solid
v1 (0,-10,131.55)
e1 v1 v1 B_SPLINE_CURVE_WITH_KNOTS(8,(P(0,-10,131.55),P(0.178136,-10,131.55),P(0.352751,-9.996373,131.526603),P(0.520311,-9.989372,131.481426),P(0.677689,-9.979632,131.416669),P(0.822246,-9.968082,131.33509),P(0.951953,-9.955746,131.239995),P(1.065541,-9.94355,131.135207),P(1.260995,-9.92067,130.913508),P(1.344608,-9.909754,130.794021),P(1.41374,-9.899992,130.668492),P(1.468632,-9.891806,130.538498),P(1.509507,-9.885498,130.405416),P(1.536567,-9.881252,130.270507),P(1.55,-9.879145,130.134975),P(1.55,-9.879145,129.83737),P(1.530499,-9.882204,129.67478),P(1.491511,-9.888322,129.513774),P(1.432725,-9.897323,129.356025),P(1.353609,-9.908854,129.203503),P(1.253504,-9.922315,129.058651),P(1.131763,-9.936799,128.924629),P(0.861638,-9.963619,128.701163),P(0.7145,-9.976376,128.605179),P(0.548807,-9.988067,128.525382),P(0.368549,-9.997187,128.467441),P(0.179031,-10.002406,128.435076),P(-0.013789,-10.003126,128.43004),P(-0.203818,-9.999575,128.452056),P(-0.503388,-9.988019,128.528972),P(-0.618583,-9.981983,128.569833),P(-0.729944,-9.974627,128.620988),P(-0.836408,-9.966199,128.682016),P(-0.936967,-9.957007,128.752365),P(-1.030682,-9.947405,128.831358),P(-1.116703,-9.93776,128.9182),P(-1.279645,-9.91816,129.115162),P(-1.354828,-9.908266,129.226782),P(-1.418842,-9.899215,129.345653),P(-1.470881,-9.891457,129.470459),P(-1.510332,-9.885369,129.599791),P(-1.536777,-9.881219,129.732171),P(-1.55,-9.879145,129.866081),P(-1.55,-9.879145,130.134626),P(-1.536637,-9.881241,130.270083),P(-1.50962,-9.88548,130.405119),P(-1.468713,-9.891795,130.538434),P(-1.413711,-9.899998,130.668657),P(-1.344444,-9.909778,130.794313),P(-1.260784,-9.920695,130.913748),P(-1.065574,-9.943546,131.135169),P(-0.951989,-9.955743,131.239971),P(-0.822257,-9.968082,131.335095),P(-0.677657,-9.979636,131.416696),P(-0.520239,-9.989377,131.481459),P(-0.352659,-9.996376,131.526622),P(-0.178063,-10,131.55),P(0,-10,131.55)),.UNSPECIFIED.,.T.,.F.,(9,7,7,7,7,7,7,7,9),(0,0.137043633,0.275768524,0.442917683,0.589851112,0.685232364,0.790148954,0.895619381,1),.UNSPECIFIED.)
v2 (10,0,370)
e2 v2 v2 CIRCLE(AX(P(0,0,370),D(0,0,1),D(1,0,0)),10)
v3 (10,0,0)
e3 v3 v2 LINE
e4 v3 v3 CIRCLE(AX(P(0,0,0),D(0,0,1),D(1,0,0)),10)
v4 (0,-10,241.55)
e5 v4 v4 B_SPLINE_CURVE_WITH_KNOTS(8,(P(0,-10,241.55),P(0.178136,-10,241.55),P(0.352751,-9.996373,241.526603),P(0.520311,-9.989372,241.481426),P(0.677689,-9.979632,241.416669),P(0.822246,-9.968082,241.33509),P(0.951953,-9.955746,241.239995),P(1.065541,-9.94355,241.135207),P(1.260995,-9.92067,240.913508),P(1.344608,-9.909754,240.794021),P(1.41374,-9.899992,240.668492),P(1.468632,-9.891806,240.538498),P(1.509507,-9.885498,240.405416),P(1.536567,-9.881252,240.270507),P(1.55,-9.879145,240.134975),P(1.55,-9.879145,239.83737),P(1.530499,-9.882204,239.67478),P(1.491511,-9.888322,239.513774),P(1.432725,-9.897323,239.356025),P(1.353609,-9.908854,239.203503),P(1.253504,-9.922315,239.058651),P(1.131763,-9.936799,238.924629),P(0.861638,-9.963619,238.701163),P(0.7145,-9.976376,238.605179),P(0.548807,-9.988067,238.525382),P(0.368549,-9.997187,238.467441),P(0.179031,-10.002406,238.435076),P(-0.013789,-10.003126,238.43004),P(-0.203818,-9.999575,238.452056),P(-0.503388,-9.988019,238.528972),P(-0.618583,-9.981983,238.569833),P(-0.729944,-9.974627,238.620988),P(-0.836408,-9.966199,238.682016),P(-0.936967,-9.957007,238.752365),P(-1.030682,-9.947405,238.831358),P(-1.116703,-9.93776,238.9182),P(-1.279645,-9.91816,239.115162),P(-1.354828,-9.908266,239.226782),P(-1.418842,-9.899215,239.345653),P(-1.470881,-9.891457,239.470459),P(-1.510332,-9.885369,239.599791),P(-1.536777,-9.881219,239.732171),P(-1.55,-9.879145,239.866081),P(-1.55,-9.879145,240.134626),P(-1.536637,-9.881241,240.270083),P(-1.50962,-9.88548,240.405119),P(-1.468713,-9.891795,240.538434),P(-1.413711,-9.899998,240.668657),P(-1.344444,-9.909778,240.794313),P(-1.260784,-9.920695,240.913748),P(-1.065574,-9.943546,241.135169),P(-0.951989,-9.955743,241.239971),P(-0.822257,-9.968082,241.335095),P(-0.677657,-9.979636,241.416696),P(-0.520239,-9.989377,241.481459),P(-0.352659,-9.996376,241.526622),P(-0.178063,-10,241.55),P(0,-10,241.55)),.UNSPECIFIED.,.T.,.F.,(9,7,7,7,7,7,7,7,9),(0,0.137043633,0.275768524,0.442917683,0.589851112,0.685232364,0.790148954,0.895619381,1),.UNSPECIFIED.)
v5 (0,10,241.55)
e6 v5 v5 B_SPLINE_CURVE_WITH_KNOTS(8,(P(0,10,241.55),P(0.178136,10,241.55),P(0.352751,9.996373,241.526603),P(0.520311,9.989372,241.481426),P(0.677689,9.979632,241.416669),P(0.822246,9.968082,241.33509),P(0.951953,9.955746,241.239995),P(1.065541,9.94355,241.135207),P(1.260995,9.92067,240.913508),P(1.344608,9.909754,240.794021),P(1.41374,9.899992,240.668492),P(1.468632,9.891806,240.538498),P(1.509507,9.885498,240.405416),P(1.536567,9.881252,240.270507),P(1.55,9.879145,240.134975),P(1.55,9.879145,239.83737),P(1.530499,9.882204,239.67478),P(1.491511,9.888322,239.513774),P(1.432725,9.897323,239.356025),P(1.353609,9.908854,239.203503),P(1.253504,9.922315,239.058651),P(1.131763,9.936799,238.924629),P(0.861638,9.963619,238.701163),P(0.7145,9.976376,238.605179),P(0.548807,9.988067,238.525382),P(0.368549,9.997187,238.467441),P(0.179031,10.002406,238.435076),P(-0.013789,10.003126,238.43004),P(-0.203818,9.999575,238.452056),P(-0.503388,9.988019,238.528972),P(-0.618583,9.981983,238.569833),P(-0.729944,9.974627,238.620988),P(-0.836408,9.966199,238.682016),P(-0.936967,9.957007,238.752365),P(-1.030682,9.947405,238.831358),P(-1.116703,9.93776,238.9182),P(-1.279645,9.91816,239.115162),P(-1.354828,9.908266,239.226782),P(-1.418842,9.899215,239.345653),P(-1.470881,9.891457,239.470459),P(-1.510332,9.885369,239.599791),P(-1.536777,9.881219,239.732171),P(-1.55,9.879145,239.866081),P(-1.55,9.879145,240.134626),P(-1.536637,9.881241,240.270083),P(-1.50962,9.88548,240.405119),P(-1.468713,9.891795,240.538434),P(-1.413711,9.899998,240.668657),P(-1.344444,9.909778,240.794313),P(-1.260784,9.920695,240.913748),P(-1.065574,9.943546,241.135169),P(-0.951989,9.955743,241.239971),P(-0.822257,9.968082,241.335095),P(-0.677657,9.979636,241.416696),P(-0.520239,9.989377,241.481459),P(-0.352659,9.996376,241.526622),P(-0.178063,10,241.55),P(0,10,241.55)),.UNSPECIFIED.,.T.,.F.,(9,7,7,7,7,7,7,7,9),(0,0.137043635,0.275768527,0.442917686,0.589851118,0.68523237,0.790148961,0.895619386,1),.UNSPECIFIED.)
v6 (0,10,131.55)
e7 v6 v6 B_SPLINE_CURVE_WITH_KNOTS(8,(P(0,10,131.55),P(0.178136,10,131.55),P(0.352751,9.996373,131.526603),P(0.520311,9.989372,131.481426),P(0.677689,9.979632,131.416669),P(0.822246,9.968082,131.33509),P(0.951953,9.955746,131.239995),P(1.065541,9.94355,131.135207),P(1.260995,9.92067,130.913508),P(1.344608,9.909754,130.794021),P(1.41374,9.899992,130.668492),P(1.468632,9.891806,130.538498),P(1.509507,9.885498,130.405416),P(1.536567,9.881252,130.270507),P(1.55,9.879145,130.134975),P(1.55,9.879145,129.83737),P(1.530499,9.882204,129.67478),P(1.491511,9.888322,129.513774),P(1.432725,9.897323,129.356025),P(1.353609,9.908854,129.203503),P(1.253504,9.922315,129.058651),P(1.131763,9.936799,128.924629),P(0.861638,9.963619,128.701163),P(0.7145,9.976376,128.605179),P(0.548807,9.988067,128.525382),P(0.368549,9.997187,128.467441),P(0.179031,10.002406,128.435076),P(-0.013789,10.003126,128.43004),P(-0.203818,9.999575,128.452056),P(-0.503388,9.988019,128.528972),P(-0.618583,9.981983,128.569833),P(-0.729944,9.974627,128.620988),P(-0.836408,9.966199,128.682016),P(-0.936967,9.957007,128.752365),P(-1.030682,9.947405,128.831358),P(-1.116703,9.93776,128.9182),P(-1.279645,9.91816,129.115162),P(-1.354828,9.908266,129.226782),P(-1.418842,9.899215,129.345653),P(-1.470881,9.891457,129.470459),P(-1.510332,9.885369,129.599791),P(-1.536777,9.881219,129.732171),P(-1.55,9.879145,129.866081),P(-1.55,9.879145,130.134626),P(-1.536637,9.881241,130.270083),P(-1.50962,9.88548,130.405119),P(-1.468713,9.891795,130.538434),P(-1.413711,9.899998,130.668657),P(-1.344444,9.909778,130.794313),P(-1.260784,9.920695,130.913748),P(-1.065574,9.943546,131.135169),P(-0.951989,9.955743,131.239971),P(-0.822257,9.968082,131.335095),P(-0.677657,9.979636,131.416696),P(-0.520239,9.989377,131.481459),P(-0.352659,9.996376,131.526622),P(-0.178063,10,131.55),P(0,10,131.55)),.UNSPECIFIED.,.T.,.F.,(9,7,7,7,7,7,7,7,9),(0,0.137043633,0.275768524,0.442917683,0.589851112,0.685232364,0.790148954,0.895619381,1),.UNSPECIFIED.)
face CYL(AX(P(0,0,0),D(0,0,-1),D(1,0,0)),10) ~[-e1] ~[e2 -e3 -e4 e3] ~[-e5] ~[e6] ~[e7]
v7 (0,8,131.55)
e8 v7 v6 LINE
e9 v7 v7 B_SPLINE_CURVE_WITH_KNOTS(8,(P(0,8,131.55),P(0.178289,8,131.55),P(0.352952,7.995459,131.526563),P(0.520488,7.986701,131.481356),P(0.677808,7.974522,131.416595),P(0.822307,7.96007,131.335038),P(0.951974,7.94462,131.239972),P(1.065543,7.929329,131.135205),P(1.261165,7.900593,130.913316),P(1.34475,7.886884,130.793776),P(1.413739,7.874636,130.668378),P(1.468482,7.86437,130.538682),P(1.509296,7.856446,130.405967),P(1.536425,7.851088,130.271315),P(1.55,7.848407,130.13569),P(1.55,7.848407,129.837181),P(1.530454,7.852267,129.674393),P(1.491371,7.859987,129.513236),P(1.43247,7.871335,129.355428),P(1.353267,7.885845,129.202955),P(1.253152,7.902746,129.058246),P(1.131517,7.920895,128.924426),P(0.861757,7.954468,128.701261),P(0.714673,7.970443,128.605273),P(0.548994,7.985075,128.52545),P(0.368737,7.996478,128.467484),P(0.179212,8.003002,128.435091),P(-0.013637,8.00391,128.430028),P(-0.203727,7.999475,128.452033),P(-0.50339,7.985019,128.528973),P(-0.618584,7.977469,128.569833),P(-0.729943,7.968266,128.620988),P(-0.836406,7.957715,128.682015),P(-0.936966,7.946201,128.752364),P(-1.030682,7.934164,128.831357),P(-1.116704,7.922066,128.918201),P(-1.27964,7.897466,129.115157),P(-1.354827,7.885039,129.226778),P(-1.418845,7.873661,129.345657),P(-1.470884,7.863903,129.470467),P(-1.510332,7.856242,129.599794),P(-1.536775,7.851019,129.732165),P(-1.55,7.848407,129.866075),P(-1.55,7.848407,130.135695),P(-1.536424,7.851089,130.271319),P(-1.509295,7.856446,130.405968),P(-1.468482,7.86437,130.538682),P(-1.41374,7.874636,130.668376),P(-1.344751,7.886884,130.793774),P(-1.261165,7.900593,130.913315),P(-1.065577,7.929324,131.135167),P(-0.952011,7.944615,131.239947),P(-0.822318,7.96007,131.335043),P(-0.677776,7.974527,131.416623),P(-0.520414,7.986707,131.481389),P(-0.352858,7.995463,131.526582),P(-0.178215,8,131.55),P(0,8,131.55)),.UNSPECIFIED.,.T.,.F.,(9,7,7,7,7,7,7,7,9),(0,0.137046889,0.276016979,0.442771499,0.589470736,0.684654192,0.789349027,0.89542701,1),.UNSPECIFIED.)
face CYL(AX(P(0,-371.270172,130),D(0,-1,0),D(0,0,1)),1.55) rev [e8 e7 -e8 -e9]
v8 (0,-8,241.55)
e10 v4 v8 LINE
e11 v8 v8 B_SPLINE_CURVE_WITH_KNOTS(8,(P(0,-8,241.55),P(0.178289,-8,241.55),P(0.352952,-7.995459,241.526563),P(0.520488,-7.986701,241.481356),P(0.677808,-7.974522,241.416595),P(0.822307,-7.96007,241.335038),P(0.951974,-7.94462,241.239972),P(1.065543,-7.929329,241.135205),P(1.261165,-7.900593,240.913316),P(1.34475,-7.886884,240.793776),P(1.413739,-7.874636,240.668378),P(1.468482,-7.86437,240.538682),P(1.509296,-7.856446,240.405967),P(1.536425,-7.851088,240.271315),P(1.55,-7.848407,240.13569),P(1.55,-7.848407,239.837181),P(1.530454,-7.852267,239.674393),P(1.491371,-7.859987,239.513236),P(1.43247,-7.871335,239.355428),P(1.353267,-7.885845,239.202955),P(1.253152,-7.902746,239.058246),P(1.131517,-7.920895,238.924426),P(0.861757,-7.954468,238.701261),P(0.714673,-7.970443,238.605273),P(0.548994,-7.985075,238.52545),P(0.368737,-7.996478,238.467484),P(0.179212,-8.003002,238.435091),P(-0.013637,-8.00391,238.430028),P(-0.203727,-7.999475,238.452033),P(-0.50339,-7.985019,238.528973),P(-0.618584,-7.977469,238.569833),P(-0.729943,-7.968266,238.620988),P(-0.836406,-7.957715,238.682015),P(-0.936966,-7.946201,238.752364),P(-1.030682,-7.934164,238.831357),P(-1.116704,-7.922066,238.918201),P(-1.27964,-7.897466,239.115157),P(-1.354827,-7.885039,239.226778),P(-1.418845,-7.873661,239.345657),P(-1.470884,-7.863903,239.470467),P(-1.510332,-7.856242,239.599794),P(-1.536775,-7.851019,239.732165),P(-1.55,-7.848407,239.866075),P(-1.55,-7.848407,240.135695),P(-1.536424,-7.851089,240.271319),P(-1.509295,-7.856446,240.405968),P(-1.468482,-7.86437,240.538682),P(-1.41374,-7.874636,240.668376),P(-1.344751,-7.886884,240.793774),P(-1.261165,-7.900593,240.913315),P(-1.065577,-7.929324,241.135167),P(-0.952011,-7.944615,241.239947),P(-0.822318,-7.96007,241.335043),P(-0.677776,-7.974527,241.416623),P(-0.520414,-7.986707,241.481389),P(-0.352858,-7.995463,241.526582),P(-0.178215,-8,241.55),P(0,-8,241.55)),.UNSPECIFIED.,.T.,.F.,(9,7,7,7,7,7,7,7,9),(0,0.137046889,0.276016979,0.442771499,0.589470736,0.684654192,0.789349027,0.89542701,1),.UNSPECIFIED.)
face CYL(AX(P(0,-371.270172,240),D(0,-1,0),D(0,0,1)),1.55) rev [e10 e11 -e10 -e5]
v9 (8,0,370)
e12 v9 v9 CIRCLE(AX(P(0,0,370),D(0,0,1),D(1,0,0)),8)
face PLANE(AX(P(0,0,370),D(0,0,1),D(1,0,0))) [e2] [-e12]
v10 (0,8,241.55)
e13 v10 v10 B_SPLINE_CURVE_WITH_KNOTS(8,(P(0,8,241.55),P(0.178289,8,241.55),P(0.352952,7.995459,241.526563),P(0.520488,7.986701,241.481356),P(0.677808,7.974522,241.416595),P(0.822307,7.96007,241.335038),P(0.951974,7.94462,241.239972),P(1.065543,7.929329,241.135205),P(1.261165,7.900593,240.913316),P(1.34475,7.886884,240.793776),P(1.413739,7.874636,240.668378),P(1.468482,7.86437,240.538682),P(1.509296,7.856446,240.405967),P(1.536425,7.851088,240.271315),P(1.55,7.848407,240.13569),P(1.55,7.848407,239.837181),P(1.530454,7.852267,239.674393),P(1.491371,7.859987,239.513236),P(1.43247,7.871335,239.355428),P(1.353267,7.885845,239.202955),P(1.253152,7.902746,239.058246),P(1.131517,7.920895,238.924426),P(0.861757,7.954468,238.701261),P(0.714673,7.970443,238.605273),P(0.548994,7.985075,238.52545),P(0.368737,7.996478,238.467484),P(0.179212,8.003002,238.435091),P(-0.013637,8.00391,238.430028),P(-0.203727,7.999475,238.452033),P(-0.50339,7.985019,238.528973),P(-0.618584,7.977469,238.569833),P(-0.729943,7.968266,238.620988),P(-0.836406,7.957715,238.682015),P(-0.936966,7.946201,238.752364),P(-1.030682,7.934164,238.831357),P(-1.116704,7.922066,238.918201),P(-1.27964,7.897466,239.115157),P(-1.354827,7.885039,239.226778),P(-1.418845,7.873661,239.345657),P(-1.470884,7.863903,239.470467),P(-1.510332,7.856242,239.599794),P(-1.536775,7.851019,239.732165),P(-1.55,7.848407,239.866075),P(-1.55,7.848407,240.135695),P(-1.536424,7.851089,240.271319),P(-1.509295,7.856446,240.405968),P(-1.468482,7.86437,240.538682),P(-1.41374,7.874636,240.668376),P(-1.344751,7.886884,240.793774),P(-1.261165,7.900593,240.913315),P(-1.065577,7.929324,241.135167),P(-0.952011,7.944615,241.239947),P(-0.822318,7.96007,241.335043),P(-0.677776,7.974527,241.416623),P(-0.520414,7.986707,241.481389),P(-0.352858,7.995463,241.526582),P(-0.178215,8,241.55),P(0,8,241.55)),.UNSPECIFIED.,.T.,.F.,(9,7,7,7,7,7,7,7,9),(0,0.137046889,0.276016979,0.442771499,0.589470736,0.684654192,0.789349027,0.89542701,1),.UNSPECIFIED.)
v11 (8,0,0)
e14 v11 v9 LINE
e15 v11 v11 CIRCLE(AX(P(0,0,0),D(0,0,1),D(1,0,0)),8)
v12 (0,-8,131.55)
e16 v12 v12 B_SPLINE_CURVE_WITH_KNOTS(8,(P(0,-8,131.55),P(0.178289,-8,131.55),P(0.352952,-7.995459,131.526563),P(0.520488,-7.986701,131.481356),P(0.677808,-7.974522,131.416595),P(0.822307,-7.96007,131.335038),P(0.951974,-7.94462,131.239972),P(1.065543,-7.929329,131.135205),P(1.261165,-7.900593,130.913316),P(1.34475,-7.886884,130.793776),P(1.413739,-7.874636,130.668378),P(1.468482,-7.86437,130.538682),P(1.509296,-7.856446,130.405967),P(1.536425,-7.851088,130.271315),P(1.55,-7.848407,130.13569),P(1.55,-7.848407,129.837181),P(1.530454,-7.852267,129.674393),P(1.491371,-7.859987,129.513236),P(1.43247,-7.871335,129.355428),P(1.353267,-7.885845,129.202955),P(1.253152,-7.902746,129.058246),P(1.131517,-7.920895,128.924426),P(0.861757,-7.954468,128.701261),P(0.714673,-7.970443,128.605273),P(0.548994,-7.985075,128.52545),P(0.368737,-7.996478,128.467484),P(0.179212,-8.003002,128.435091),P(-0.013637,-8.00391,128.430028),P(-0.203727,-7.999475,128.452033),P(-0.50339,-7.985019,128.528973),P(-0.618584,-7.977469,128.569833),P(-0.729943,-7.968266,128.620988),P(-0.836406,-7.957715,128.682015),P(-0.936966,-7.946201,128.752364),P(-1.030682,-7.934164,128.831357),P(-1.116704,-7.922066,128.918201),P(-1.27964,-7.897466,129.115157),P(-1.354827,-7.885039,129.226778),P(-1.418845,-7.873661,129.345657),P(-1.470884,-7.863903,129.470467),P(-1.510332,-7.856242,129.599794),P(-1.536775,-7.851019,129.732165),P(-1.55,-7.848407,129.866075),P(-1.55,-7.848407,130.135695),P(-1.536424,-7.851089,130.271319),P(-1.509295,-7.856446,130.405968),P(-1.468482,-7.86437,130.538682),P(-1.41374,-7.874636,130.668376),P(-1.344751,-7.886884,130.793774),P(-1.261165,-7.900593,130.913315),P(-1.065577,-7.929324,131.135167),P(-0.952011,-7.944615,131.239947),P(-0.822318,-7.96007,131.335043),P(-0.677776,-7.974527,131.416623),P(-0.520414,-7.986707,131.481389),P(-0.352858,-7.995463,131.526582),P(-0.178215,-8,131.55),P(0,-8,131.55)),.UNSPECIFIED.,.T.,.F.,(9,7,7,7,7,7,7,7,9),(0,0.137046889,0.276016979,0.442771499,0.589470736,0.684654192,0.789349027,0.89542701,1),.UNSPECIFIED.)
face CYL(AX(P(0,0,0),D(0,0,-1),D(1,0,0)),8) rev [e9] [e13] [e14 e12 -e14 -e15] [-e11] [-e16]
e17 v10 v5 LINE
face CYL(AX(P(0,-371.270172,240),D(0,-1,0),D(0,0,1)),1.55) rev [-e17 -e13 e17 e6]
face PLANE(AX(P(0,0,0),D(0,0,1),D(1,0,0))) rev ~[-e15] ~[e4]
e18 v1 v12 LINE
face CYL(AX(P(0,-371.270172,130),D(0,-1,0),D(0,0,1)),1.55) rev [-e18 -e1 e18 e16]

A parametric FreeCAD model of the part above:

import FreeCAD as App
import Part
import Sketcher
from FreeCAD import Vector
Q = App.Units.Quantity

doc = App.newDocument("Part")
body = doc.addObject("PartDesign::Body", "Body")

# Sketch on XY plane
sketch1 = body.newObject("Sketcher::SketchObject", "Sketch")
sketch1.AttachmentSupport = (doc.getObject("XY_Plane"), [""])
sketch1.MapMode = "FlatFace"
sketch1.addGeometry([
    Part.Circle(Vector(0, 0, 0), Vector(0, 0, 1), 10),
    Part.Circle(Vector(0, 0, 0), Vector(0, 0, 1), 8),
], False)
sketch1.addConstraint([
    Sketcher.Constraint("Coincident", 0, 3, -1, 1),
    Sketcher.Constraint("Coincident", 1, 3, -1, 1),
    Sketcher.Constraint("Diameter", 0, Q("20 mm")),
    Sketcher.Constraint("Diameter", 1, Q("16 mm")),
])
pad1 = body.newObject("PartDesign::Pad", "Pad")
pad1.Profile = sketch1
pad1.Length = 370

# Sketch on XZ plane
sketch2 = body.newObject("Sketcher::SketchObject", "Sketch001")
sketch2.AttachmentSupport = (doc.getObject("XZ_Plane"), [""])
sketch2.MapMode = "FlatFace"
sketch2.addGeometry([
    Part.Circle(Vector(0, 130, 0), Vector(0, 0, 1), 1.6),
    Part.Circle(Vector(0, 240, 0), Vector(0, 0, 1), 1.6),
], False)
sketch2.addConstraint([
    Sketcher.Constraint("Equal", 0, 1),
    Sketcher.Constraint("PointOnObject", 0, 3, -2),
    Sketcher.Constraint("PointOnObject", 1, 3, -2),
    Sketcher.Constraint("Diameter", 0, Q("3.1 mm")),
    Sketcher.Constraint("DistanceY", -1, 1, 0, 3, Q("130 mm")),
    Sketcher.Constraint("DistanceY", -1, 1, 1, 3, Q("240 mm")),
])
pocket1 = body.newObject("PartDesign::Pocket", "Pocket")
pocket1.Profile = sketch2
pocket1.Type = "ThroughAll"
pocket1.Midplane = True

doc.recompute()
